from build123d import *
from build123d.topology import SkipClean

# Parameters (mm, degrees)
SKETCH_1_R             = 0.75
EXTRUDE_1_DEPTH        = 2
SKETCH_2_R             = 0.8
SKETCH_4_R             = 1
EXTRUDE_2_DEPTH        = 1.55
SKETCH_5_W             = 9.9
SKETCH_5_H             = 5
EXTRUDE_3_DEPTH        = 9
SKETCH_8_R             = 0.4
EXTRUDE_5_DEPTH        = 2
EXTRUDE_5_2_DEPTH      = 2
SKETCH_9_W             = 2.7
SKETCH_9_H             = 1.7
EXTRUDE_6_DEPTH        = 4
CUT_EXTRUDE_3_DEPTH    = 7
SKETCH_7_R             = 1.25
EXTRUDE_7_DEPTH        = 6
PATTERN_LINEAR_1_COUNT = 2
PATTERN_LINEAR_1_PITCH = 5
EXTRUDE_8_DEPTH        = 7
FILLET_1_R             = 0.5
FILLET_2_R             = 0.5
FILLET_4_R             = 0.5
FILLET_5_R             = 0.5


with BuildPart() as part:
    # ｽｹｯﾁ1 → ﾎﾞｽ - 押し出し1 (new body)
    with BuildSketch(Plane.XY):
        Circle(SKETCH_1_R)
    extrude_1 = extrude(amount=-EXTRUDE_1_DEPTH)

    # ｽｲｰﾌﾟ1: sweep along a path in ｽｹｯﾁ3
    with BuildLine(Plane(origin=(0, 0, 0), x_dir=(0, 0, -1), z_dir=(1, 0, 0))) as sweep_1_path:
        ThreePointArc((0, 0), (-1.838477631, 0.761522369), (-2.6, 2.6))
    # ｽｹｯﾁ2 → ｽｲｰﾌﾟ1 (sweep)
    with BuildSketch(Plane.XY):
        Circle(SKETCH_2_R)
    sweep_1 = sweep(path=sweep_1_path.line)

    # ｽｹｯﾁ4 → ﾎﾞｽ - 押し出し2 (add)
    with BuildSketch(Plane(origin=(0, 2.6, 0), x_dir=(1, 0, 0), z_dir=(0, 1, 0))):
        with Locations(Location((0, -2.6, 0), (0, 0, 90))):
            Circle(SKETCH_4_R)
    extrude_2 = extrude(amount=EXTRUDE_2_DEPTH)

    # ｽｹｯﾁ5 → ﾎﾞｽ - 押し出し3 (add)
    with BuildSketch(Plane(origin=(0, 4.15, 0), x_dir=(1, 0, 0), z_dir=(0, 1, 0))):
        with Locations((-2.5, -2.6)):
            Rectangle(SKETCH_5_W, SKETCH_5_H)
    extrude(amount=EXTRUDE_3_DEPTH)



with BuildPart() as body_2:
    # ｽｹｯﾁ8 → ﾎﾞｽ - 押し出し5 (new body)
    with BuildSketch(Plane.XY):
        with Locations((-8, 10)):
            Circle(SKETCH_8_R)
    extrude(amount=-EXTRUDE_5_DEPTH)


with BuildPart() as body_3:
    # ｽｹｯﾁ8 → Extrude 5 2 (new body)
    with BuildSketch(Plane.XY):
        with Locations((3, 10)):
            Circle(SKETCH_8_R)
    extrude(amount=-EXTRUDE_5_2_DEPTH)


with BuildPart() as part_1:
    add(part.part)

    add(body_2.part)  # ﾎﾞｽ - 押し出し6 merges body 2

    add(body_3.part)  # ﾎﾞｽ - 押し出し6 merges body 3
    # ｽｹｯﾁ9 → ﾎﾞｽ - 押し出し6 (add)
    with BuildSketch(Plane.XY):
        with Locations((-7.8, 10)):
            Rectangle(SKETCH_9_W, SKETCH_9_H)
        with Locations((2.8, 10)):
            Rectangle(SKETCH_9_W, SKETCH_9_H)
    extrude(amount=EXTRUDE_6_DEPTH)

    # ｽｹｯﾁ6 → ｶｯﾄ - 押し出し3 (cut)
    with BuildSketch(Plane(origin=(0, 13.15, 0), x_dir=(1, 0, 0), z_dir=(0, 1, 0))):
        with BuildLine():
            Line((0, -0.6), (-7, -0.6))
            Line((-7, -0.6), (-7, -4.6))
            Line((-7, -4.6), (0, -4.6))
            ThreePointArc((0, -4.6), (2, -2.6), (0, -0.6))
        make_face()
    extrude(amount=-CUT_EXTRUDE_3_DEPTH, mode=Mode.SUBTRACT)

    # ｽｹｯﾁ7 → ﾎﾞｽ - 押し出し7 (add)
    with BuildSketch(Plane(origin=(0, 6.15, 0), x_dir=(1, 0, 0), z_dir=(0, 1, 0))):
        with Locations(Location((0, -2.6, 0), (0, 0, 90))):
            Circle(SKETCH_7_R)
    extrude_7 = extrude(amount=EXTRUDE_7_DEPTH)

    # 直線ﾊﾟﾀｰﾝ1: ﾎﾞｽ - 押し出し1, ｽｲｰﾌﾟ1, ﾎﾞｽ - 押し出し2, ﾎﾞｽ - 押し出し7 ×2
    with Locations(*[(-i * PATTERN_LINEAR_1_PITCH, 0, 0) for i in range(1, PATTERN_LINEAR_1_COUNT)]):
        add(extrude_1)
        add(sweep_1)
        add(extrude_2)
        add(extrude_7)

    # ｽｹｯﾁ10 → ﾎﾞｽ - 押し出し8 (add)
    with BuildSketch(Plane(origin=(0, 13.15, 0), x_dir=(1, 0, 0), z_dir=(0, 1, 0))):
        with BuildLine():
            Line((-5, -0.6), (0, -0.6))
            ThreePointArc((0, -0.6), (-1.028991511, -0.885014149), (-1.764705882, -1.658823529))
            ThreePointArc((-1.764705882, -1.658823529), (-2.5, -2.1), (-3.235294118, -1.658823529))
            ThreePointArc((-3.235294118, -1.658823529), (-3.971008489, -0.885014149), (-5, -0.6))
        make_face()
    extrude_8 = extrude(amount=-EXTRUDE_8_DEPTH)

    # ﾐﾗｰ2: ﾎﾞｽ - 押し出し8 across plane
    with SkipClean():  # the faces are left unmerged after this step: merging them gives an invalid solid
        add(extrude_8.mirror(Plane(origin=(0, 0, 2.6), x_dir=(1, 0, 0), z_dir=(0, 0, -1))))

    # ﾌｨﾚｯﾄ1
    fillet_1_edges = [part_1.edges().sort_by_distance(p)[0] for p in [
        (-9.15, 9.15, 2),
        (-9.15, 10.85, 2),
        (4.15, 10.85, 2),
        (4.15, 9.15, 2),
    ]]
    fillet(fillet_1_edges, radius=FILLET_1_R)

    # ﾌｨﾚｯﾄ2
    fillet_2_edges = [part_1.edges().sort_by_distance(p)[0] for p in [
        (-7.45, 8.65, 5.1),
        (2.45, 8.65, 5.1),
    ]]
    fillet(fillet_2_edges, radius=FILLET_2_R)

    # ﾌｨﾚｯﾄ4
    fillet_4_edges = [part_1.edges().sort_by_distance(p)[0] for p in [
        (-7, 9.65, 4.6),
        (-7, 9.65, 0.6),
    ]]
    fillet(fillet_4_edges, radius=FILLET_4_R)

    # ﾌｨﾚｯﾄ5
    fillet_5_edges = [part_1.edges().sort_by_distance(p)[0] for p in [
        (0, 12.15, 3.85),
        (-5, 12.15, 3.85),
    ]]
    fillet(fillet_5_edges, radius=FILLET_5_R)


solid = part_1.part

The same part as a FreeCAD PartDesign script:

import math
import FreeCAD as App
import Part
import Sketcher
from FreeCAD import Vector
Q = App.Units.Quantity


def edges_at(feature, points):
    """Names of the edges that pass closest to the given points."""
    edges = feature.Shape.Edges
    near = lambda p: min(range(len(edges)), key=lambda i: edges[i].distToShape(Part.Vertex(*p))[0])
    return sorted({f"Edge{near(p) + 1}" for p in points})

doc = App.newDocument("Part")
body = doc.addObject("PartDesign::Body", "Body")

# Sketch on XY plane
sketch1 = body.newObject("Sketcher::SketchObject", "Sketch")
sketch1.AttachmentSupport = (doc.getObject("XY_Plane"), [""])
sketch1.MapMode = "FlatFace"
sketch1.addGeometry(Part.Circle(Vector(0, 0, 0), Vector(0, 0, 1), 0.8), False)
sketch1.addConstraint(Sketcher.Constraint("Coincident", 0, 3, -1, 1))
sketch1.addConstraint(Sketcher.Constraint("Diameter", 0, Q("1.5 mm")))
pad1 = body.newObject("PartDesign::Pad", "Pad")
pad1.Profile = sketch1
pad1.Length = 2
pad1.Reversed = True

# Sketch on XY plane
sketch2 = body.newObject("Sketcher::SketchObject", "Sketch001")
sketch2.AttachmentSupport = (doc.getObject("XY_Plane"), [""])
sketch2.MapMode = "FlatFace"
sketch2.addGeometry(Part.Circle(Vector(0, 0, 0), Vector(0, 0, 1), 0.8), False)
sketch2.addConstraint(Sketcher.Constraint("Coincident", 0, 3, -1, 1))
sketch2.addConstraint(Sketcher.Constraint("Diameter", 0, Q("1.6 mm")))

# Sketch on YZ plane
sketch3 = body.newObject("Sketcher::SketchObject", "Sketch002")
sketch3.AttachmentSupport = (doc.getObject("YZ_Plane"), [""])
sketch3.MapMode = "FlatFace"
sketch3.addGeometry(Part.ArcOfCircle(Part.Circle(Vector(2.6, 0, 0), Vector(0, 0, 1), 2.6), math.radians(90), math.radians(180)), False)
sketch3.addConstraint(Sketcher.Constraint("Coincident", 0, 2, -1, 1))
sketch3.addConstraint(Sketcher.Constraint("PointOnObject", 0, 3, -1))
sketch3.addConstraint(Sketcher.Constraint("Radius", 0, Q("2.6 mm")))
sketch3.addConstraint(Sketcher.Constraint("DistanceX", -1, 1, 0, 1, Q("2.6 mm")))
doc.recompute()

additivepipe = body.newObject("PartDesign::AdditivePipe", "AdditivePipe")
additivepipe.Profile = sketch2
additivepipe.Spine = (sketch3, ["Edge1"])

# Sketch on XZ plane
sketch4 = body.newObject("Sketcher::SketchObject", "Sketch003")
sketch4.AttachmentSupport = (doc.getObject("XZ_Plane"), [""])
sketch4.MapMode = "FlatFace"
sketch4.AttachmentOffset = App.Placement(Vector(0, 0, -2.6), App.Rotation())
sketch4.addGeometry(Part.Circle(Vector(0, 2.6, 0), Vector(0, 0, 1), 1), False)
sketch4.addConstraint(Sketcher.Constraint("PointOnObject", 0, 3, -2))
sketch4.addConstraint(Sketcher.Constraint("Diameter", 0, Q("2 mm")))
sketch4.addConstraint(Sketcher.Constraint("DistanceY", -1, 1, 0, 3, Q("2.6 mm")))
pad2 = body.newObject("PartDesign::Pad", "Pad001")
pad2.Profile = sketch4
pad2.Length = 1.55
pad2.Reversed = True

# Sketch on XZ plane
sketch5 = body.newObject("Sketcher::SketchObject", "Sketch004")
sketch5.AttachmentSupport = (doc.getObject("XZ_Plane"), [""])
sketch5.MapMode = "FlatFace"
sketch5.AttachmentOffset = App.Placement(Vector(0, 0, -4.15), App.Rotation())
sketch5.addGeometry(Part.LineSegment(Vector(-7, 0, 0), Vector(-7, 5, 0)), False)
sketch5.addGeometry(Part.LineSegment(Vector(-7, 5, 0), Vector(2, 5, 0)), False)
sketch5.addGeometry(Part.LineSegment(Vector(2, 5, 0), Vector(2, 0, 0)), False)
sketch5.addGeometry(Part.LineSegment(Vector(2, 0, 0), Vector(-7, 0, 0)), False)
sketch5.addConstraint(Sketcher.Constraint("Coincident", 0, 2, 1, 1))
sketch5.addConstraint(Sketcher.Constraint("Coincident", 1, 2, 2, 1))
sketch5.addConstraint(Sketcher.Constraint("Coincident", 2, 2, 3, 1))
sketch5.addConstraint(Sketcher.Constraint("Coincident", 3, 2, 0, 1))
sketch5.addConstraint(Sketcher.Constraint("Vertical", 0))
sketch5.addConstraint(Sketcher.Constraint("Horizontal", 1))
sketch5.addConstraint(Sketcher.Constraint("Vertical", 2))
sketch5.addConstraint(Sketcher.Constraint("Horizontal", 3))
sketch5.addConstraint(Sketcher.Constraint("DistanceY", 0, 1, 0, 2, Q("5 mm")))
sketch5.addConstraint(Sketcher.Constraint("DistanceX", 1, 1, 1, 2, Q("9.9 mm")))
sketch5.addConstraint(Sketcher.Constraint("DistanceY", -1, 1, 0, 2, Q("5.1 mm")))
sketch5.addConstraint(Sketcher.Constraint("DistanceX", 0, 2, -1, 1, Q("7.45 mm")))
pad3 = body.newObject("PartDesign::Pad", "Pad002")
pad3.Profile = sketch5
pad3.Length = 9
pad3.Reversed = True
body2 = doc.addObject("PartDesign::Body", "Body001")

# Sketch on XY plane
sketch6 = body2.newObject("Sketcher::SketchObject", "Sketch005")
sketch6.AttachmentSupport = (doc.getObject("XY_Plane001"), [""])
sketch6.MapMode = "FlatFace"
sketch6.addGeometry(Part.Circle(Vector(-8, 10, 0), Vector(0, 0, 1), 0.4), False)
sketch6.addConstraint(Sketcher.Constraint("Diameter", 0, Q("0.8 mm")))
sketch6.addConstraint(Sketcher.Constraint("DistanceX", 0, 3, -1, 1, Q("8 mm")))
sketch6.addConstraint(Sketcher.Constraint("DistanceY", -1, 1, 0, 3, Q("10 mm")))
pad4 = body2.newObject("PartDesign::Pad", "Pad003")
pad4.Profile = sketch6
pad4.Length = 2
pad4.Reversed = True
body3 = doc.addObject("PartDesign::Body", "Body002")

# Sketch on XY plane
sketch7 = body3.newObject("Sketcher::SketchObject", "Sketch006")
sketch7.AttachmentSupport = (doc.getObject("XY_Plane002"), [""])
sketch7.MapMode = "FlatFace"
sketch7.addGeometry(Part.Circle(Vector(3, 10, 0), Vector(0, 0, 1), 0.4), False)
sketch7.addConstraint(Sketcher.Constraint("Diameter", 0, Q("0.8 mm")))
sketch7.addConstraint(Sketcher.Constraint("DistanceX", -1, 1, 0, 3, Q("3 mm")))
sketch7.addConstraint(Sketcher.Constraint("DistanceY", -1, 1, 0, 3, Q("10 mm")))
pad5 = body3.newObject("PartDesign::Pad", "Pad004")
pad5.Profile = sketch7
pad5.Length = 2
pad5.Reversed = True
body.AllowCompound = True
doc.recompute()

boolean = body.newObject("PartDesign::Boolean", "Boolean")
boolean.Type = "Fuse"
boolean.addObjects([body2])
doc.recompute()

boolean2 = body.newObject("PartDesign::Boolean", "Boolean001")
boolean2.Type = "Fuse"
boolean2.addObjects([body3])

# Sketch on XY plane
sketch8 = body.newObject("Sketcher::SketchObject", "Sketch007")
sketch8.AttachmentSupport = (doc.getObject("XY_Plane"), [""])
sketch8.MapMode = "FlatFace"
sketch8.addGeometry(Part.LineSegment(Vector(-9.2, 10.8, 0), Vector(-9.2, 9.2, 0)), False)
sketch8.addGeometry(Part.LineSegment(Vector(-9.2, 9.2, 0), Vector(-6.5, 9.2, 0)), False)
sketch8.addGeometry(Part.LineSegment(Vector(-6.5, 9.2, 0), Vector(-6.5, 10.8, 0)), False)
sketch8.addGeometry(Part.LineSegment(Vector(-6.5, 10.8, 0), Vector(-9.2, 10.8, 0)), False)
sketch8.addGeometry(Part.LineSegment(Vector(1.4, 10.8, 0), Vector(1.4, 9.2, 0)), False)
sketch8.addGeometry(Part.LineSegment(Vector(1.4, 9.2, 0), Vector(4.2, 9.2, 0)), False)
sketch8.addGeometry(Part.LineSegment(Vector(4.2, 9.2, 0), Vector(4.2, 10.8, 0)), False)
sketch8.addGeometry(Part.LineSegment(Vector(4.2, 10.8, 0), Vector(1.4, 10.8, 0)), False)
sketch8.addConstraint(Sketcher.Constraint("Coincident", 0, 2, 1, 1))
sketch8.addConstraint(Sketcher.Constraint("Coincident", 1, 2, 2, 1))
sketch8.addConstraint(Sketcher.Constraint("Coincident", 2, 2, 3, 1))
sketch8.addConstraint(Sketcher.Constraint("Coincident", 3, 2, 0, 1))
sketch8.addConstraint(Sketcher.Constraint("Coincident", 4, 2, 5, 1))
sketch8.addConstraint(Sketcher.Constraint("Coincident", 5, 2, 6, 1))
sketch8.addConstraint(Sketcher.Constraint("Coincident", 6, 2, 7, 1))
sketch8.addConstraint(Sketcher.Constraint("Coincident", 7, 2, 4, 1))
sketch8.addConstraint(Sketcher.Constraint("Vertical", 0))
sketch8.addConstraint(Sketcher.Constraint("Horizontal", 1))
sketch8.addConstraint(Sketcher.Constraint("Vertical", 2))
sketch8.addConstraint(Sketcher.Constraint("Horizontal", 3))
sketch8.addConstraint(Sketcher.Constraint("Vertical", 4))
sketch8.addConstraint(Sketcher.Constraint("Horizontal", 5))
sketch8.addConstraint(Sketcher.Constraint("Vertical", 6))
sketch8.addConstraint(Sketcher.Constraint("Horizontal", 7))
sketch8.addConstraint(Sketcher.Constraint("Horizontal", 1, 2, 4, 2))
sketch8.addConstraint(Sketcher.Constraint("Horizontal", 3, 2, 6, 2))
sketch8.addConstraint(Sketcher.Constraint("Equal", 3, 5))
sketch8.addConstraint(Sketcher.Constraint("DistanceX", 1, 1, 1, 2, Q("2.7 mm")))
sketch8.addConstraint(Sketcher.Constraint("DistanceY", 0, 2, 0, 1, Q("1.7 mm")))
sketch8.addConstraint(Sketcher.Constraint("DistanceX", 1, 2, 4, 2, Q("7.9 mm")))
sketch8.addConstraint(Sketcher.Constraint("DistanceX", 0, 2, -1, 1, Q("9.15 mm")))
sketch8.addConstraint(Sketcher.Constraint("DistanceY", -1, 1, 0, 2, Q("9.15 mm")))
pad6 = body.newObject("PartDesign::Pad", "Pad005")
pad6.Profile = sketch8
pad6.Length = 4

# Sketch on XZ plane
sketch9 = body.newObject("Sketcher::SketchObject", "Sketch008")
sketch9.AttachmentSupport = (doc.getObject("XZ_Plane"), [""])
sketch9.MapMode = "FlatFace"
sketch9.AttachmentOffset = App.Placement(Vector(0, 0, -13.15), App.Rotation())
sketch9.addGeometry(Part.LineSegment(Vector(0, 0.6, 0), Vector(-7, 0.6, 0)), False)
sketch9.addGeometry(Part.LineSegment(Vector(-7, 0.6, 0), Vector(-7, 4.6, 0)), False)
sketch9.addGeometry(Part.LineSegment(Vector(-7, 4.6, 0), Vector(0, 4.6, 0)), False)
sketch9.addGeometry(Part.ArcOfCircle(Part.Circle(Vector(0, 2.6, 0), Vector(0, 0, 1), 2), math.radians(-90), math.radians(90)), False)
sketch9.addConstraint(Sketcher.Constraint("Coincident", 0, 2, 1, 1))
sketch9.addConstraint(Sketcher.Constraint("Coincident", 1, 2, 2, 1))
sketch9.addConstraint(Sketcher.Constraint("Tangent", 2, 2, 3, 2))
sketch9.addConstraint(Sketcher.Constraint("Tangent", 3, 1, 0, 1))
sketch9.addConstraint(Sketcher.Constraint("Horizontal", 0))
sketch9.addConstraint(Sketcher.Constraint("Vertical", 1))
sketch9.addConstraint(Sketcher.Constraint("Horizontal", 2))
sketch9.addConstraint(Sketcher.Constraint("PointOnObject", 3, 3, -2))
sketch9.addConstraint(Sketcher.Constraint("Radius", 3, Q("2 mm")))
sketch9.addConstraint(Sketcher.Constraint("DistanceX", 0, 2, 0, 1, Q("7 mm")))
sketch9.addConstraint(Sketcher.Constraint("DistanceY", -1, 1, 3, 3, Q("2.6 mm")))
pocket1 = body.newObject("PartDesign::Pocket", "Pocket")
pocket1.Profile = sketch9
pocket1.Length = 7
pocket1.Reversed = True

# Sketch on XZ plane
sketch10 = body.newObject("Sketcher::SketchObject", "Sketch009")
sketch10.AttachmentSupport = (doc.getObject("XZ_Plane"), [""])
sketch10.MapMode = "FlatFace"
sketch10.AttachmentOffset = App.Placement(Vector(0, 0, -6.15), App.Rotation())
sketch10.addGeometry(Part.Circle(Vector(0, 2.6, 0), Vector(0, 0, 1), 1.2), False)
sketch10.addConstraint(Sketcher.Constraint("PointOnObject", 0, 3, -2))
sketch10.addConstraint(Sketcher.Constraint("Diameter", 0, Q("2.5 mm")))
sketch10.addConstraint(Sketcher.Constraint("DistanceY", -1, 1, 0, 3, Q("2.6 mm")))
pad7 = body.newObject("PartDesign::Pad", "Pad006")
pad7.Profile = sketch10
pad7.Length = 6
pad7.Reversed = True
doc.recompute()

linearpattern = body.newObject("PartDesign::LinearPattern", "LinearPattern")
linearpattern.Originals = [pad1, additivepipe, pad2, pad7]
linearpattern.Direction = (doc.getObject("X_Axis"), [""])
linearpattern.Mode = "offset"
linearpattern.Offset = 5
linearpattern.Occurrences = 2
linearpattern.Reversed = True
body.Tip = linearpattern

# Sketch on XZ plane
sketch11 = body.newObject("Sketcher::SketchObject", "Sketch010")
sketch11.AttachmentSupport = (doc.getObject("XZ_Plane"), [""])
sketch11.MapMode = "FlatFace"
sketch11.AttachmentOffset = App.Placement(Vector(0, 0, -13.15), App.Rotation())
sketch11.addGeometry(Part.LineSegment(Vector(0, 0.6, 0), Vector(-5, 0.6, 0)), False)
sketch11.addGeometry(Part.ArcOfCircle(Part.Circle(Vector(-5, 2.6, 0), Vector(0, 0, 1), 2), math.radians(-90), math.radians(-28)), False)
sketch11.addGeometry(Part.ArcOfCircle(Part.Circle(Vector(-2.5, 1.3, 0), Vector(0, 0, 1), 0.8), math.radians(28), math.radians(152)), False)
sketch11.addGeometry(Part.ArcOfCircle(Part.Circle(Vector(0, 2.6, 0), Vector(0, 0, 1), 2), math.radians(-152), math.radians(-90)), False)
sketch11.addConstraint(Sketcher.Constraint("Tangent", 0, 2, 1, 1))
sketch11.addConstraint(Sketcher.Constraint("Tangent", 1, 2, 2, 2))
sketch11.addConstraint(Sketcher.Constraint("Tangent", 2, 1, 3, 1))
sketch11.addConstraint(Sketcher.Constraint("Tangent", 3, 2, 0, 1))
sketch11.addConstraint(Sketcher.Constraint("Horizontal", 0))
sketch11.addConstraint(Sketcher.Constraint("Equal", 1, 3))
sketch11.addConstraint(Sketcher.Constraint("PointOnObject", 3, 3, -2))
sketch11.addConstraint(Sketcher.Constraint("Radius", 1, Q("2 mm")))
sketch11.addConstraint(Sketcher.Constraint("DistanceX", 0, 2, 0, 1, Q("5 mm")))
sketch11.addConstraint(Sketcher.Constraint("DistanceY", -1, 1, 1, 3, Q("2.6 mm")))
sketch11.addConstraint(Sketcher.Constraint("Radius", 2, Q("0.833333 mm")))
pad8 = body.newObject("PartDesign::Pad", "Pad007")
pad8.Profile = sketch11
pad8.Length = 7
doc.recompute()

datumplane = body.newObject("PartDesign::Plane", "DatumPlane")
datumplane.AttachmentSupport = (doc.getObject("XY_Plane"), [""])
datumplane.MapMode = "FlatFace"
datumplane.AttachmentOffset = App.Placement(Vector(0, 0, 2.6), App.Rotation())
mirrored = body.newObject("PartDesign::Mirrored", "Mirrored")
mirrored.Originals = [pad8]
mirrored.MirrorPlane = (datumplane, [""])
body.Tip = mirrored
doc.recompute()

fillet = body.newObject("PartDesign::Fillet", "Fillet")
fillet.Base = (mirrored, edges_at(mirrored, [
    (-9.15, 9.15, 2),
    (-9.15, 10.85, 2),
    (4.15, 10.85, 2),
    (4.15, 9.15, 2),
]))
fillet.Radius = 0.5
doc.recompute()

fillet2 = body.newObject("PartDesign::Fillet", "Fillet001")
fillet2.Base = (fillet, edges_at(fillet, [(-7.45, 8.65, 5.1), (2.45, 8.65, 5.1)]))
fillet2.Radius = 0.5
doc.recompute()

fillet3 = body.newObject("PartDesign::Fillet", "Fillet002")
fillet3.Base = (fillet2, edges_at(fillet2, [(-7, 9.65, 4.6), (-7, 9.65, 0.6)]))
fillet3.Radius = 0.5
doc.recompute()

fillet4 = body.newObject("PartDesign::Fillet", "Fillet003")
fillet4.Base = (fillet3, edges_at(fillet3, [(0, 12.15, 3.85), (-5, 12.15, 3.85)]))
fillet4.Radius = 0.5

doc.recompute()
